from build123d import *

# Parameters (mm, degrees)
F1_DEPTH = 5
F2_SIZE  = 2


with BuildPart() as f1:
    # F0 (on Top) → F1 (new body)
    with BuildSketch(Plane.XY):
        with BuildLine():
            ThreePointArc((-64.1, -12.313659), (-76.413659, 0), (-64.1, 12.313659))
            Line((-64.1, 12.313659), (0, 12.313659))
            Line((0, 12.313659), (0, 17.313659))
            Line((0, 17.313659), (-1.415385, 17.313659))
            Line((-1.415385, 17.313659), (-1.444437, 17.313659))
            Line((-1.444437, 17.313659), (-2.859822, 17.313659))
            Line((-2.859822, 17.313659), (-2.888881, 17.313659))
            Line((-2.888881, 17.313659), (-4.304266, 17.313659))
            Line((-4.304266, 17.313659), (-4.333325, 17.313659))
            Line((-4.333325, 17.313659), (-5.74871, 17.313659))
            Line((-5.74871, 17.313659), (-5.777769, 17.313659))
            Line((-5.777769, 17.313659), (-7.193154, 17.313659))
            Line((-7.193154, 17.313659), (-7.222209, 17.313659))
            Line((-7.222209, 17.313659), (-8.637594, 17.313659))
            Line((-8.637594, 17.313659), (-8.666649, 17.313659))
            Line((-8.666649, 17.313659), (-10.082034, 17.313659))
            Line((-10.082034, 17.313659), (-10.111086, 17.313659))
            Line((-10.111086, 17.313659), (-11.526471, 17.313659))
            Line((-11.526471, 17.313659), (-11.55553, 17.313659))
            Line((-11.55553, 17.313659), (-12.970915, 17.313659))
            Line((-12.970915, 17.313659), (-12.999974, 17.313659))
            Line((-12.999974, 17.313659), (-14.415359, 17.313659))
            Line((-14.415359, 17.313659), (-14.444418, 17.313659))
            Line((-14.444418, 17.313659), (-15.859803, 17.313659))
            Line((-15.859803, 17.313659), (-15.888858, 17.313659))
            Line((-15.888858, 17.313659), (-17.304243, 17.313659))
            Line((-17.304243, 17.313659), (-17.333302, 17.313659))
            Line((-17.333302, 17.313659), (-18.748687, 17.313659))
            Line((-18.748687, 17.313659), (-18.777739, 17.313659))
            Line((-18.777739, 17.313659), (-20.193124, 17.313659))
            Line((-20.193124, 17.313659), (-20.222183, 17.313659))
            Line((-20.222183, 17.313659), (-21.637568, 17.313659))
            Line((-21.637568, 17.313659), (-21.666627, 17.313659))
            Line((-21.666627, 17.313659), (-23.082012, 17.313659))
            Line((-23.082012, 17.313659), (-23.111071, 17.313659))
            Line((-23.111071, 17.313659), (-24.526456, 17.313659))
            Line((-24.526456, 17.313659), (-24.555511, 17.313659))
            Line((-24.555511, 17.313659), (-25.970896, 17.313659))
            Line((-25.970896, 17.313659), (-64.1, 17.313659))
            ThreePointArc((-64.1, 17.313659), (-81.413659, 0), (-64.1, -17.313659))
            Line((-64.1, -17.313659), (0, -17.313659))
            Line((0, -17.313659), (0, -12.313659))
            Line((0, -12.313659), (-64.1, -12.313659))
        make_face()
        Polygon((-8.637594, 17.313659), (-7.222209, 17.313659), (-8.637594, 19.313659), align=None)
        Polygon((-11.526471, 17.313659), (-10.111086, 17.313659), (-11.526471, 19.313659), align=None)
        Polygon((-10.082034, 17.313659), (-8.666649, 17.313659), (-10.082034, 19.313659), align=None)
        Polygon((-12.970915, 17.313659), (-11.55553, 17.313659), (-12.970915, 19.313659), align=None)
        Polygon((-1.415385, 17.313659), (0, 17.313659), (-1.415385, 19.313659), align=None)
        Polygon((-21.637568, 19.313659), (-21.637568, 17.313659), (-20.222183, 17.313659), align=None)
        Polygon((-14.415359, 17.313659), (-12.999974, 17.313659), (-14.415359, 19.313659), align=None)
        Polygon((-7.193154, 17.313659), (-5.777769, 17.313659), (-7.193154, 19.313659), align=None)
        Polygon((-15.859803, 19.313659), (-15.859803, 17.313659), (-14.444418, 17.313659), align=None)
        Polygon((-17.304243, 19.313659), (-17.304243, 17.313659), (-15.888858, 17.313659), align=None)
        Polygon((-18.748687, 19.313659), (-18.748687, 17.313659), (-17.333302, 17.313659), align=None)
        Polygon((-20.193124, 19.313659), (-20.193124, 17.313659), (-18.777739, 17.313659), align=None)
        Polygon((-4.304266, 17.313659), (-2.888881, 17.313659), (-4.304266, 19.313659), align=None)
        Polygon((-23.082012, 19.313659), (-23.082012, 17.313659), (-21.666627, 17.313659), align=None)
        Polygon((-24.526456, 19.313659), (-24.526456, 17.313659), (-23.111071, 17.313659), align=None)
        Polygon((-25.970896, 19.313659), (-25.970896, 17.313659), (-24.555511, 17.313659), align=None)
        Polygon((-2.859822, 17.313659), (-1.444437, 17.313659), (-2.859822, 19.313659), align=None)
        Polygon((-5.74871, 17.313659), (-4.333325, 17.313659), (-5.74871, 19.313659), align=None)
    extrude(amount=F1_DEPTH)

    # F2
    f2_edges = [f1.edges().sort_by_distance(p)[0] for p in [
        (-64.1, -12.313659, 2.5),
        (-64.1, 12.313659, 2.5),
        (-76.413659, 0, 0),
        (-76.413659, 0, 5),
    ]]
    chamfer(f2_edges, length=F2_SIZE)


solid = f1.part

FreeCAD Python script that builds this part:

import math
import FreeCAD as App
import Part
import Sketcher


def edges_at(feature, points):
    """Names of the edges that pass closest to the given points."""
    edges = feature.Shape.Edges
    near = lambda p: min(range(len(edges)), key=lambda i: edges[i].distToShape(Part.Vertex(*p))[0])
    return sorted({f"Edge{near(p) + 1}" for p in points})

doc = App.newDocument("Part")
body = doc.addObject("PartDesign::Body", "Body")

# Sketch on XY plane
sketch1 = body.newObject("Sketcher::SketchObject", "Sketch")
sketch1.AttachmentSupport = (doc.getObject("XY_Plane"), [""])
sketch1.MapMode = "FlatFace"
sketch1.addGeometry([
    Part.ArcOfCircle(Part.Circle(App.Vector(-64.1, 0, 0), App.Vector(0, 0, 1), 12.314), math.radians(90), math.radians(270)),  # 0
    Part.LineSegment(App.Vector(-64.1, 12.314, 0), App.Vector(0, 12.314, 0)),  # 1
    Part.LineSegment(App.Vector(0, 12.314, 0), App.Vector(0, 17.314, 0)),  # 2
    Part.LineSegment(App.Vector(0, 17.314, 0), App.Vector(-1.415, 19.314, 0)),  # 3
    Part.LineSegment(App.Vector(-1.415, 19.314, 0), App.Vector(-1.415, 17.314, 0)),  # 4
    Part.LineSegment(App.Vector(-1.415, 17.314, 0), App.Vector(-1.444, 17.314, 0)),  # 5
    Part.LineSegment(App.Vector(-1.444, 17.314, 0), App.Vector(-2.86, 19.314, 0)),  # 6
    Part.LineSegment(App.Vector(-2.86, 19.314, 0), App.Vector(-2.86, 17.314, 0)),  # 7
    Part.LineSegment(App.Vector(-2.86, 17.314, 0), App.Vector(-2.889, 17.314, 0)),  # 8
    Part.LineSegment(App.Vector(-2.889, 17.314, 0), App.Vector(-4.304, 19.314, 0)),  # 9
    Part.LineSegment(App.Vector(-4.304, 19.314, 0), App.Vector(-4.304, 17.314, 0)),  # 10
    Part.LineSegment(App.Vector(-4.304, 17.314, 0), App.Vector(-4.333, 17.314, 0)),  # 11
    Part.LineSegment(App.Vector(-4.333, 17.314, 0), App.Vector(-5.749, 19.314, 0)),  # 12
    Part.LineSegment(App.Vector(-5.749, 19.314, 0), App.Vector(-5.749, 17.314, 0)),  # 13
    Part.LineSegment(App.Vector(-5.749, 17.314, 0), App.Vector(-5.778, 17.314, 0)),  # 14
    Part.LineSegment(App.Vector(-5.778, 17.314, 0), App.Vector(-7.193, 19.314, 0)),  # 15
    Part.LineSegment(App.Vector(-7.193, 19.314, 0), App.Vector(-7.193, 17.314, 0)),  # 16
    Part.LineSegment(App.Vector(-7.193, 17.314, 0), App.Vector(-7.222, 17.314, 0)),  # 17
    Part.LineSegment(App.Vector(-7.222, 17.314, 0), App.Vector(-8.638, 19.314, 0)),  # 18
    Part.LineSegment(App.Vector(-8.638, 19.314, 0), App.Vector(-8.638, 17.314, 0)),  # 19
    Part.LineSegment(App.Vector(-8.638, 17.314, 0), App.Vector(-8.667, 17.314, 0)),  # 20
    Part.LineSegment(App.Vector(-8.667, 17.314, 0), App.Vector(-10.082, 19.314, 0)),  # 21
    Part.LineSegment(App.Vector(-10.082, 19.314, 0), App.Vector(-10.082, 17.314, 0)),  # 22
    Part.LineSegment(App.Vector(-10.082, 17.314, 0), App.Vector(-10.111, 17.314, 0)),  # 23
    Part.LineSegment(App.Vector(-10.111, 17.314, 0), App.Vector(-11.526, 19.314, 0)),  # 24
    Part.LineSegment(App.Vector(-11.526, 19.314, 0), App.Vector(-11.526, 17.314, 0)),  # 25
    Part.LineSegment(App.Vector(-11.526, 17.314, 0), App.Vector(-11.556, 17.314, 0)),  # 26
    Part.LineSegment(App.Vector(-11.556, 17.314, 0), App.Vector(-12.971, 19.314, 0)),  # 27
    Part.LineSegment(App.Vector(-12.971, 19.314, 0), App.Vector(-12.971, 17.314, 0)),  # 28
    Part.LineSegment(App.Vector(-12.971, 17.314, 0), App.Vector(-13, 17.314, 0)),  # 29
    Part.LineSegment(App.Vector(-13, 17.314, 0), App.Vector(-14.415, 19.314, 0)),  # 30
    Part.LineSegment(App.Vector(-14.415, 19.314, 0), App.Vector(-14.415, 17.314, 0)),  # 31
    Part.LineSegment(App.Vector(-14.415, 17.314, 0), App.Vector(-14.444, 17.314, 0)),  # 32
    Part.LineSegment(App.Vector(-14.444, 17.314, 0), App.Vector(-15.86, 19.314, 0)),  # 33
    Part.LineSegment(App.Vector(-15.86, 19.314, 0), App.Vector(-15.86, 17.314, 0)),  # 34
    Part.LineSegment(App.Vector(-15.86, 17.314, 0), App.Vector(-15.889, 17.314, 0)),  # 35
    Part.LineSegment(App.Vector(-15.889, 17.314, 0), App.Vector(-17.304, 19.314, 0)),  # 36
    Part.LineSegment(App.Vector(-17.304, 19.314, 0), App.Vector(-17.304, 17.314, 0)),  # 37
    Part.LineSegment(App.Vector(-17.304, 17.314, 0), App.Vector(-17.333, 17.314, 0)),  # 38
    Part.LineSegment(App.Vector(-17.333, 17.314, 0), App.Vector(-18.749, 19.314, 0)),  # 39
    Part.LineSegment(App.Vector(-18.749, 19.314, 0), App.Vector(-18.749, 17.314, 0)),  # 40
    Part.LineSegment(App.Vector(-18.749, 17.314, 0), App.Vector(-18.778, 17.314, 0)),  # 41
    Part.LineSegment(App.Vector(-18.778, 17.314, 0), App.Vector(-20.193, 19.314, 0)),  # 42
    Part.LineSegment(App.Vector(-20.193, 19.314, 0), App.Vector(-20.193, 17.314, 0)),  # 43
    Part.LineSegment(App.Vector(-20.193, 17.314, 0), App.Vector(-20.222, 17.314, 0)),  # 44
    Part.LineSegment(App.Vector(-20.222, 17.314, 0), App.Vector(-21.638, 19.314, 0)),  # 45
    Part.LineSegment(App.Vector(-21.638, 19.314, 0), App.Vector(-21.638, 17.314, 0)),  # 46
    Part.LineSegment(App.Vector(-21.638, 17.314, 0), App.Vector(-21.667, 17.314, 0)),  # 47
    Part.LineSegment(App.Vector(-21.667, 17.314, 0), App.Vector(-23.082, 19.314, 0)),  # 48
    Part.LineSegment(App.Vector(-23.082, 19.314, 0), App.Vector(-23.082, 17.314, 0)),  # 49
    Part.LineSegment(App.Vector(-23.082, 17.314, 0), App.Vector(-23.111, 17.314, 0)),  # 50
    Part.LineSegment(App.Vector(-23.111, 17.314, 0), App.Vector(-24.526, 19.314, 0)),  # 51
    Part.LineSegment(App.Vector(-24.526, 19.314, 0), App.Vector(-24.526, 17.314, 0)),  # 52
    Part.LineSegment(App.Vector(-24.526, 17.314, 0), App.Vector(-24.556, 17.314, 0)),  # 53
    Part.LineSegment(App.Vector(-24.556, 17.314, 0), App.Vector(-25.971, 19.314, 0)),  # 54
    Part.LineSegment(App.Vector(-25.971, 19.314, 0), App.Vector(-25.971, 17.314, 0)),  # 55
    Part.LineSegment(App.Vector(-25.971, 17.314, 0), App.Vector(-64.1, 17.314, 0)),  # 56
    Part.ArcOfCircle(Part.Circle(App.Vector(-64.1, 0, 0), App.Vector(0, 0, 1), 17.314), math.radians(90), math.radians(270)),  # 57
    Part.LineSegment(App.Vector(-64.1, -17.314, 0), App.Vector(0, -17.314, 0)),  # 58
    Part.LineSegment(App.Vector(0, -17.314, 0), App.Vector(0, -12.314, 0)),  # 59
    Part.LineSegment(App.Vector(0, -12.314, 0), App.Vector(-64.1, -12.314, 0)),  # 60
], False)
sketch1.addConstraint([
    Sketcher.Constraint("Tangent", 0, 1, 1, 1),
    Sketcher.Constraint("Coincident", 1, 2, 2, 1),
    Sketcher.Constraint("Coincident", 2, 2, 3, 1),
    Sketcher.Constraint("Coincident", 3, 2, 4, 1),
    Sketcher.Constraint("Coincident", 4, 2, 5, 1),
    Sketcher.Constraint("Coincident", 5, 2, 6, 1),
    Sketcher.Constraint("Coincident", 6, 2, 7, 1),
    Sketcher.Constraint("Coincident", 7, 2, 8, 1),
    Sketcher.Constraint("Coincident", 8, 2, 9, 1),
    Sketcher.Constraint("Coincident", 9, 2, 10, 1),
    Sketcher.Constraint("Coincident", 10, 2, 11, 1),
    Sketcher.Constraint("Coincident", 11, 2, 12, 1),
    Sketcher.Constraint("Coincident", 12, 2, 13, 1),
    Sketcher.Constraint("Coincident", 13, 2, 14, 1),
    Sketcher.Constraint("Coincident", 14, 2, 15, 1),
    Sketcher.Constraint("Coincident", 15, 2, 16, 1),
    Sketcher.Constraint("Coincident", 16, 2, 17, 1),
    Sketcher.Constraint("Coincident", 17, 2, 18, 1),
    Sketcher.Constraint("Coincident", 18, 2, 19, 1),
    Sketcher.Constraint("Coincident", 19, 2, 20, 1),
    Sketcher.Constraint("Coincident", 20, 2, 21, 1),
    Sketcher.Constraint("Coincident", 21, 2, 22, 1),
    Sketcher.Constraint("Coincident", 22, 2, 23, 1),
    Sketcher.Constraint("Coincident", 23, 2, 24, 1),
    Sketcher.Constraint("Coincident", 24, 2, 25, 1),
    Sketcher.Constraint("Coincident", 25, 2, 26, 1),
    Sketcher.Constraint("Coincident", 26, 2, 27, 1),
    Sketcher.Constraint("Coincident", 27, 2, 28, 1),
    Sketcher.Constraint("Coincident", 28, 2, 29, 1),
    Sketcher.Constraint("Coincident", 29, 2, 30, 1),
    Sketcher.Constraint("Coincident", 30, 2, 31, 1),
    Sketcher.Constraint("Coincident", 31, 2, 32, 1),
    Sketcher.Constraint("Coincident", 32, 2, 33, 1),
    Sketcher.Constraint("Coincident", 33, 2, 34, 1),
    Sketcher.Constraint("Coincident", 34, 2, 35, 1),
    Sketcher.Constraint("Coincident", 35, 2, 36, 1),
    Sketcher.Constraint("Coincident", 36, 2, 37, 1),
    Sketcher.Constraint("Coincident", 37, 2, 38, 1),
    Sketcher.Constraint("Coincident", 38, 2, 39, 1),
    Sketcher.Constraint("Coincident", 39, 2, 40, 1),
    Sketcher.Constraint("Coincident", 40, 2, 41, 1),
    Sketcher.Constraint("Coincident", 41, 2, 42, 1),
    Sketcher.Constraint("Coincident", 42, 2, 43, 1),
    Sketcher.Constraint("Coincident", 43, 2, 44, 1),
    Sketcher.Constraint("Coincident", 44, 2, 45, 1),
    Sketcher.Constraint("Coincident", 45, 2, 46, 1),
    Sketcher.Constraint("Coincident", 46, 2, 47, 1),
    Sketcher.Constraint("Coincident", 47, 2, 48, 1),
    Sketcher.Constraint("Coincident", 48, 2, 49, 1),
    Sketcher.Constraint("Coincident", 49, 2, 50, 1),
    Sketcher.Constraint("Coincident", 50, 2, 51, 1),
    Sketcher.Constraint("Coincident", 51, 2, 52, 1),
    Sketcher.Constraint("Coincident", 52, 2, 53, 1),
    Sketcher.Constraint("Coincident", 53, 2, 54, 1),
    Sketcher.Constraint("Coincident", 54, 2, 55, 1),
    Sketcher.Constraint("Coincident", 55, 2, 56, 1),
    Sketcher.Constraint("Tangent", 56, 2, 57, 1),
    Sketcher.Constraint("Tangent", 57, 2, 58, 1),
    Sketcher.Constraint("Coincident", 58, 2, 59, 1),
    Sketcher.Constraint("Coincident", 59, 2, 60, 1),
    Sketcher.Constraint("Tangent", 60, 2, 0, 2),
    Sketcher.Constraint("Horizontal", 1),
    Sketcher.Constraint("Vertical", 2),
    Sketcher.Constraint("Vertical", 4),
    Sketcher.Constraint("Horizontal", 5),
    Sketcher.Constraint("Vertical", 7),
    Sketcher.Constraint("Horizontal", 8),
    Sketcher.Constraint("Vertical", 10),
    Sketcher.Constraint("Horizontal", 11),
    Sketcher.Constraint("Vertical", 13),
    Sketcher.Constraint("Horizontal", 14),
    Sketcher.Constraint("Vertical", 16),
    Sketcher.Constraint("Horizontal", 17),
    Sketcher.Constraint("Vertical", 19),
    Sketcher.Constraint("Horizontal", 20),
    Sketcher.Constraint("Vertical", 22),
    Sketcher.Constraint("Horizontal", 23),
    Sketcher.Constraint("Vertical", 25),
    Sketcher.Constraint("Horizontal", 26),
    Sketcher.Constraint("Vertical", 28),
    Sketcher.Constraint("Horizontal", 29),
    Sketcher.Constraint("Vertical", 31),
    Sketcher.Constraint("Horizontal", 32),
    Sketcher.Constraint("Vertical", 34),
    Sketcher.Constraint("Horizontal", 35),
    Sketcher.Constraint("Vertical", 37),
    Sketcher.Constraint("Horizontal", 38),
    Sketcher.Constraint("Vertical", 40),
    Sketcher.Constraint("Horizontal", 41),
    Sketcher.Constraint("Vertical", 43),
    Sketcher.Constraint("Horizontal", 44),
    Sketcher.Constraint("Vertical", 46),
    Sketcher.Constraint("Horizontal", 47),
    Sketcher.Constraint("Vertical", 49),
    Sketcher.Constraint("Horizontal", 50),
    Sketcher.Constraint("Vertical", 52),
    Sketcher.Constraint("Horizontal", 53),
    Sketcher.Constraint("Vertical", 55),
    Sketcher.Constraint("Horizontal", 56),
    Sketcher.Constraint("Horizontal", 58),
    Sketcher.Constraint("Vertical", 59),
    Sketcher.Constraint("Horizontal", 60),
    Sketcher.Constraint("Coincident", 57, 3, 0, 3),
    Sketcher.Constraint("Symmetric", 2, 2, 58, 2, -1, 1),
    Sketcher.Constraint("Symmetric", 1, 2, 59, 2, -1),
    Sketcher.Constraint("Parallel", 3, 6),
    Sketcher.Constraint("Parallel", 6, 9),
    Sketcher.Constraint("Parallel", 9, 12),
    Sketcher.Constraint("Parallel", 12, 15),
    Sketcher.Constraint("Parallel", 15, 18),
    Sketcher.Constraint("Parallel", 18, 21),
    Sketcher.Constraint("Parallel", 21, 24),
    Sketcher.Constraint("Parallel", 24, 27),
    Sketcher.Constraint("Parallel", 27, 30),
    Sketcher.Constraint("Parallel", 30, 33),
    Sketcher.Constraint("Parallel", 33, 36),
    Sketcher.Constraint("Parallel", 36, 39),
    Sketcher.Constraint("Parallel", 39, 42),
    Sketcher.Constraint("Parallel", 42, 45),
    Sketcher.Constraint("Parallel", 45, 48),
    Sketcher.Constraint("Parallel", 48, 51),
    Sketcher.Constraint("Parallel", 51, 54),
    Sketcher.Constraint("Horizontal", 2, 2, 4, 2),
    Sketcher.Constraint("Horizontal", 3, 2, 6, 2),
    Sketcher.Constraint("Horizontal", 5, 2, 7, 2),
    Sketcher.Constraint("Horizontal", 6, 2, 9, 2),
    Sketcher.Constraint("Horizontal", 8, 2, 10, 2),
    Sketcher.Constraint("Horizontal", 9, 2, 12, 2),
    Sketcher.Constraint("Horizontal", 11, 2, 13, 2),
    Sketcher.Constraint("Horizontal", 12, 2, 15, 2),
    Sketcher.Constraint("Horizontal", 14, 2, 16, 2),
    Sketcher.Constraint("Horizontal", 15, 2, 18, 2),
    Sketcher.Constraint("Horizontal", 17, 2, 19, 2),
    Sketcher.Constraint("Horizontal", 18, 2, 21, 2),
    Sketcher.Constraint("Horizontal", 20, 2, 22, 2),
    Sketcher.Constraint("Horizontal", 21, 2, 24, 2),
    Sketcher.Constraint("Horizontal", 23, 2, 25, 2),
    Sketcher.Constraint("Horizontal", 24, 2, 27, 2),
    Sketcher.Constraint("Horizontal", 26, 2, 28, 2),
    Sketcher.Constraint("Horizontal", 27, 2, 30, 2),
    Sketcher.Constraint("Horizontal", 29, 2, 31, 2),
    Sketcher.Constraint("Horizontal", 30, 2, 33, 2),
    Sketcher.Constraint("Horizontal", 32, 2, 34, 2),
    Sketcher.Constraint("Horizontal", 33, 2, 36, 2),
    Sketcher.Constraint("Horizontal", 35, 2, 37, 2),
    Sketcher.Constraint("Horizontal", 36, 2, 39, 2),
    Sketcher.Constraint("Horizontal", 38, 2, 40, 2),
    Sketcher.Constraint("Horizontal", 39, 2, 42, 2),
    Sketcher.Constraint("Horizontal", 41, 2, 43, 2),
    Sketcher.Constraint("Horizontal", 42, 2, 45, 2),
    Sketcher.Constraint("Horizontal", 44, 2, 46, 2),
    Sketcher.Constraint("Horizontal", 45, 2, 48, 2),
    Sketcher.Constraint("Horizontal", 47, 2, 49, 2),
    Sketcher.Constraint("Horizontal", 48, 2, 51, 2),
    Sketcher.Constraint("Horizontal", 50, 2, 52, 2),
    Sketcher.Constraint("Horizontal", 51, 2, 54, 2),
    Sketcher.Constraint("Equal", 8, 11),
    Sketcher.Constraint("Equal", 11, 14),
    Sketcher.Constraint("Equal", 17, 20),
    Sketcher.Constraint("Equal", 5, 23),
    Sketcher.Constraint("Equal", 14, 26),
    Sketcher.Constraint("Equal", 26, 29),
    Sketcher.Constraint("Equal", 29, 32),
    Sketcher.Constraint("Equal", 20, 35),
    Sketcher.Constraint("Equal", 32, 38),
    Sketcher.Constraint("Equal", 23, 41),
    Sketcher.Constraint("Equal", 38, 44),
    Sketcher.Constraint("Equal", 44, 47),
    Sketcher.Constraint("Equal", 47, 50),
    Sketcher.Constraint("Equal", 35, 53),
    Sketcher.Constraint("DistanceY", 2, 1, 2, 2, 5.0),
    Sketcher.Constraint("DistanceY", 4, 2, 4, 1, 2.0),
    Sketcher.Constraint("DistanceX", 1, 1, 1, 2, 64.1),
    Sketcher.Constraint("Radius", 0, 12.313659),
    Sketcher.Constraint("DistanceX", 8, 2, 8, 1, 0.029059),
    Sketcher.Constraint("DistanceX", 38, 2, -1, 1, 17.333302),
    Sketcher.Constraint("DistanceX", 5, 2, 5, 1, 0.029052),
    Sketcher.Constraint("DistanceX", 17, 2, 17, 1, 0.029055),
])
pad1 = body.newObject("PartDesign::Pad", "Pad")
pad1.Profile = sketch1
pad1.Length = 5
doc.recompute()

chamfer = body.newObject("PartDesign::Chamfer", "Chamfer")
chamfer.Base = (pad1, edges_at(pad1, [
    (-64.1, -12.314, 2.5),
    (-64.1, 12.314, 2.5),
    (-76.414, 0, 0),
    (-76.414, 0, 5),
]))
chamfer.Size = 2

doc.recompute()
